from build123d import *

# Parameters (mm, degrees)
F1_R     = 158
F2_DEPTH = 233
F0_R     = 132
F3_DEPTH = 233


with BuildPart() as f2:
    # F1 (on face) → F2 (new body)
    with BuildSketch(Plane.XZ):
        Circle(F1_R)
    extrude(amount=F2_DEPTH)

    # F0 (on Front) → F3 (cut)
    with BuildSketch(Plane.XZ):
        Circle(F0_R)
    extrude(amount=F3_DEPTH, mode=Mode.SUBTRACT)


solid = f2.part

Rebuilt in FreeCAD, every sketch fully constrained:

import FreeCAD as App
import Part
import Sketcher

doc = App.newDocument("Part")
params = doc.addObject("Spreadsheet::Sheet", "Params")
for row, (alias, value) in enumerate([
    ("sketch1_diameter", "316 mm"),
    ("pad1_length", "233 mm"),
    ("sketch2_diameter", "264 mm"),
    ("pocket1_length", "233 mm"),
], start=1):
    params.set(f"A{row}", alias)
    params.set(f"B{row}", "=" + value)
    params.setAlias(f"B{row}", alias)

body = doc.addObject("PartDesign::Body", "Body")

# Sketch on XZ plane
sketch1 = body.newObject("Sketcher::SketchObject", "Sketch")
sketch1.AttachmentSupport = (doc.getObject("XZ_Plane"), [""])
sketch1.MapMode = "FlatFace"
sketch1.addGeometry(Part.Circle(App.Vector(0, 0, 0), App.Vector(0, 0, 1), 158), False)
sketch1.addConstraint(Sketcher.Constraint("Coincident", 0, 3, -1, 1))
sketch1.addConstraint(Sketcher.Constraint("Diameter", 0, 316.0))
sketch1.setExpression("Constraints[1]", "Params.sketch1_diameter")
pad1 = body.newObject("PartDesign::Pad", "Pad")
pad1.Profile = sketch1
pad1.setExpression("Length", "Params.pad1_length")

# Sketch on XZ plane
sketch2 = body.newObject("Sketcher::SketchObject", "Sketch001")
sketch2.AttachmentSupport = (doc.getObject("XZ_Plane"), [""])
sketch2.MapMode = "FlatFace"
sketch2.addGeometry(Part.Circle(App.Vector(0, 0, 0), App.Vector(0, 0, 1), 132), False)
sketch2.addConstraint(Sketcher.Constraint("Coincident", 0, 3, -1, 1))
sketch2.addConstraint(Sketcher.Constraint("Diameter", 0, 264.0))
sketch2.setExpression("Constraints[1]", "Params.sketch2_diameter")
pocket1 = body.newObject("PartDesign::Pocket", "Pocket")
pocket1.Profile = sketch2
pocket1.setExpression("Length", "Params.pocket1_length")
pocket1.Reversed = True

doc.recompute()
